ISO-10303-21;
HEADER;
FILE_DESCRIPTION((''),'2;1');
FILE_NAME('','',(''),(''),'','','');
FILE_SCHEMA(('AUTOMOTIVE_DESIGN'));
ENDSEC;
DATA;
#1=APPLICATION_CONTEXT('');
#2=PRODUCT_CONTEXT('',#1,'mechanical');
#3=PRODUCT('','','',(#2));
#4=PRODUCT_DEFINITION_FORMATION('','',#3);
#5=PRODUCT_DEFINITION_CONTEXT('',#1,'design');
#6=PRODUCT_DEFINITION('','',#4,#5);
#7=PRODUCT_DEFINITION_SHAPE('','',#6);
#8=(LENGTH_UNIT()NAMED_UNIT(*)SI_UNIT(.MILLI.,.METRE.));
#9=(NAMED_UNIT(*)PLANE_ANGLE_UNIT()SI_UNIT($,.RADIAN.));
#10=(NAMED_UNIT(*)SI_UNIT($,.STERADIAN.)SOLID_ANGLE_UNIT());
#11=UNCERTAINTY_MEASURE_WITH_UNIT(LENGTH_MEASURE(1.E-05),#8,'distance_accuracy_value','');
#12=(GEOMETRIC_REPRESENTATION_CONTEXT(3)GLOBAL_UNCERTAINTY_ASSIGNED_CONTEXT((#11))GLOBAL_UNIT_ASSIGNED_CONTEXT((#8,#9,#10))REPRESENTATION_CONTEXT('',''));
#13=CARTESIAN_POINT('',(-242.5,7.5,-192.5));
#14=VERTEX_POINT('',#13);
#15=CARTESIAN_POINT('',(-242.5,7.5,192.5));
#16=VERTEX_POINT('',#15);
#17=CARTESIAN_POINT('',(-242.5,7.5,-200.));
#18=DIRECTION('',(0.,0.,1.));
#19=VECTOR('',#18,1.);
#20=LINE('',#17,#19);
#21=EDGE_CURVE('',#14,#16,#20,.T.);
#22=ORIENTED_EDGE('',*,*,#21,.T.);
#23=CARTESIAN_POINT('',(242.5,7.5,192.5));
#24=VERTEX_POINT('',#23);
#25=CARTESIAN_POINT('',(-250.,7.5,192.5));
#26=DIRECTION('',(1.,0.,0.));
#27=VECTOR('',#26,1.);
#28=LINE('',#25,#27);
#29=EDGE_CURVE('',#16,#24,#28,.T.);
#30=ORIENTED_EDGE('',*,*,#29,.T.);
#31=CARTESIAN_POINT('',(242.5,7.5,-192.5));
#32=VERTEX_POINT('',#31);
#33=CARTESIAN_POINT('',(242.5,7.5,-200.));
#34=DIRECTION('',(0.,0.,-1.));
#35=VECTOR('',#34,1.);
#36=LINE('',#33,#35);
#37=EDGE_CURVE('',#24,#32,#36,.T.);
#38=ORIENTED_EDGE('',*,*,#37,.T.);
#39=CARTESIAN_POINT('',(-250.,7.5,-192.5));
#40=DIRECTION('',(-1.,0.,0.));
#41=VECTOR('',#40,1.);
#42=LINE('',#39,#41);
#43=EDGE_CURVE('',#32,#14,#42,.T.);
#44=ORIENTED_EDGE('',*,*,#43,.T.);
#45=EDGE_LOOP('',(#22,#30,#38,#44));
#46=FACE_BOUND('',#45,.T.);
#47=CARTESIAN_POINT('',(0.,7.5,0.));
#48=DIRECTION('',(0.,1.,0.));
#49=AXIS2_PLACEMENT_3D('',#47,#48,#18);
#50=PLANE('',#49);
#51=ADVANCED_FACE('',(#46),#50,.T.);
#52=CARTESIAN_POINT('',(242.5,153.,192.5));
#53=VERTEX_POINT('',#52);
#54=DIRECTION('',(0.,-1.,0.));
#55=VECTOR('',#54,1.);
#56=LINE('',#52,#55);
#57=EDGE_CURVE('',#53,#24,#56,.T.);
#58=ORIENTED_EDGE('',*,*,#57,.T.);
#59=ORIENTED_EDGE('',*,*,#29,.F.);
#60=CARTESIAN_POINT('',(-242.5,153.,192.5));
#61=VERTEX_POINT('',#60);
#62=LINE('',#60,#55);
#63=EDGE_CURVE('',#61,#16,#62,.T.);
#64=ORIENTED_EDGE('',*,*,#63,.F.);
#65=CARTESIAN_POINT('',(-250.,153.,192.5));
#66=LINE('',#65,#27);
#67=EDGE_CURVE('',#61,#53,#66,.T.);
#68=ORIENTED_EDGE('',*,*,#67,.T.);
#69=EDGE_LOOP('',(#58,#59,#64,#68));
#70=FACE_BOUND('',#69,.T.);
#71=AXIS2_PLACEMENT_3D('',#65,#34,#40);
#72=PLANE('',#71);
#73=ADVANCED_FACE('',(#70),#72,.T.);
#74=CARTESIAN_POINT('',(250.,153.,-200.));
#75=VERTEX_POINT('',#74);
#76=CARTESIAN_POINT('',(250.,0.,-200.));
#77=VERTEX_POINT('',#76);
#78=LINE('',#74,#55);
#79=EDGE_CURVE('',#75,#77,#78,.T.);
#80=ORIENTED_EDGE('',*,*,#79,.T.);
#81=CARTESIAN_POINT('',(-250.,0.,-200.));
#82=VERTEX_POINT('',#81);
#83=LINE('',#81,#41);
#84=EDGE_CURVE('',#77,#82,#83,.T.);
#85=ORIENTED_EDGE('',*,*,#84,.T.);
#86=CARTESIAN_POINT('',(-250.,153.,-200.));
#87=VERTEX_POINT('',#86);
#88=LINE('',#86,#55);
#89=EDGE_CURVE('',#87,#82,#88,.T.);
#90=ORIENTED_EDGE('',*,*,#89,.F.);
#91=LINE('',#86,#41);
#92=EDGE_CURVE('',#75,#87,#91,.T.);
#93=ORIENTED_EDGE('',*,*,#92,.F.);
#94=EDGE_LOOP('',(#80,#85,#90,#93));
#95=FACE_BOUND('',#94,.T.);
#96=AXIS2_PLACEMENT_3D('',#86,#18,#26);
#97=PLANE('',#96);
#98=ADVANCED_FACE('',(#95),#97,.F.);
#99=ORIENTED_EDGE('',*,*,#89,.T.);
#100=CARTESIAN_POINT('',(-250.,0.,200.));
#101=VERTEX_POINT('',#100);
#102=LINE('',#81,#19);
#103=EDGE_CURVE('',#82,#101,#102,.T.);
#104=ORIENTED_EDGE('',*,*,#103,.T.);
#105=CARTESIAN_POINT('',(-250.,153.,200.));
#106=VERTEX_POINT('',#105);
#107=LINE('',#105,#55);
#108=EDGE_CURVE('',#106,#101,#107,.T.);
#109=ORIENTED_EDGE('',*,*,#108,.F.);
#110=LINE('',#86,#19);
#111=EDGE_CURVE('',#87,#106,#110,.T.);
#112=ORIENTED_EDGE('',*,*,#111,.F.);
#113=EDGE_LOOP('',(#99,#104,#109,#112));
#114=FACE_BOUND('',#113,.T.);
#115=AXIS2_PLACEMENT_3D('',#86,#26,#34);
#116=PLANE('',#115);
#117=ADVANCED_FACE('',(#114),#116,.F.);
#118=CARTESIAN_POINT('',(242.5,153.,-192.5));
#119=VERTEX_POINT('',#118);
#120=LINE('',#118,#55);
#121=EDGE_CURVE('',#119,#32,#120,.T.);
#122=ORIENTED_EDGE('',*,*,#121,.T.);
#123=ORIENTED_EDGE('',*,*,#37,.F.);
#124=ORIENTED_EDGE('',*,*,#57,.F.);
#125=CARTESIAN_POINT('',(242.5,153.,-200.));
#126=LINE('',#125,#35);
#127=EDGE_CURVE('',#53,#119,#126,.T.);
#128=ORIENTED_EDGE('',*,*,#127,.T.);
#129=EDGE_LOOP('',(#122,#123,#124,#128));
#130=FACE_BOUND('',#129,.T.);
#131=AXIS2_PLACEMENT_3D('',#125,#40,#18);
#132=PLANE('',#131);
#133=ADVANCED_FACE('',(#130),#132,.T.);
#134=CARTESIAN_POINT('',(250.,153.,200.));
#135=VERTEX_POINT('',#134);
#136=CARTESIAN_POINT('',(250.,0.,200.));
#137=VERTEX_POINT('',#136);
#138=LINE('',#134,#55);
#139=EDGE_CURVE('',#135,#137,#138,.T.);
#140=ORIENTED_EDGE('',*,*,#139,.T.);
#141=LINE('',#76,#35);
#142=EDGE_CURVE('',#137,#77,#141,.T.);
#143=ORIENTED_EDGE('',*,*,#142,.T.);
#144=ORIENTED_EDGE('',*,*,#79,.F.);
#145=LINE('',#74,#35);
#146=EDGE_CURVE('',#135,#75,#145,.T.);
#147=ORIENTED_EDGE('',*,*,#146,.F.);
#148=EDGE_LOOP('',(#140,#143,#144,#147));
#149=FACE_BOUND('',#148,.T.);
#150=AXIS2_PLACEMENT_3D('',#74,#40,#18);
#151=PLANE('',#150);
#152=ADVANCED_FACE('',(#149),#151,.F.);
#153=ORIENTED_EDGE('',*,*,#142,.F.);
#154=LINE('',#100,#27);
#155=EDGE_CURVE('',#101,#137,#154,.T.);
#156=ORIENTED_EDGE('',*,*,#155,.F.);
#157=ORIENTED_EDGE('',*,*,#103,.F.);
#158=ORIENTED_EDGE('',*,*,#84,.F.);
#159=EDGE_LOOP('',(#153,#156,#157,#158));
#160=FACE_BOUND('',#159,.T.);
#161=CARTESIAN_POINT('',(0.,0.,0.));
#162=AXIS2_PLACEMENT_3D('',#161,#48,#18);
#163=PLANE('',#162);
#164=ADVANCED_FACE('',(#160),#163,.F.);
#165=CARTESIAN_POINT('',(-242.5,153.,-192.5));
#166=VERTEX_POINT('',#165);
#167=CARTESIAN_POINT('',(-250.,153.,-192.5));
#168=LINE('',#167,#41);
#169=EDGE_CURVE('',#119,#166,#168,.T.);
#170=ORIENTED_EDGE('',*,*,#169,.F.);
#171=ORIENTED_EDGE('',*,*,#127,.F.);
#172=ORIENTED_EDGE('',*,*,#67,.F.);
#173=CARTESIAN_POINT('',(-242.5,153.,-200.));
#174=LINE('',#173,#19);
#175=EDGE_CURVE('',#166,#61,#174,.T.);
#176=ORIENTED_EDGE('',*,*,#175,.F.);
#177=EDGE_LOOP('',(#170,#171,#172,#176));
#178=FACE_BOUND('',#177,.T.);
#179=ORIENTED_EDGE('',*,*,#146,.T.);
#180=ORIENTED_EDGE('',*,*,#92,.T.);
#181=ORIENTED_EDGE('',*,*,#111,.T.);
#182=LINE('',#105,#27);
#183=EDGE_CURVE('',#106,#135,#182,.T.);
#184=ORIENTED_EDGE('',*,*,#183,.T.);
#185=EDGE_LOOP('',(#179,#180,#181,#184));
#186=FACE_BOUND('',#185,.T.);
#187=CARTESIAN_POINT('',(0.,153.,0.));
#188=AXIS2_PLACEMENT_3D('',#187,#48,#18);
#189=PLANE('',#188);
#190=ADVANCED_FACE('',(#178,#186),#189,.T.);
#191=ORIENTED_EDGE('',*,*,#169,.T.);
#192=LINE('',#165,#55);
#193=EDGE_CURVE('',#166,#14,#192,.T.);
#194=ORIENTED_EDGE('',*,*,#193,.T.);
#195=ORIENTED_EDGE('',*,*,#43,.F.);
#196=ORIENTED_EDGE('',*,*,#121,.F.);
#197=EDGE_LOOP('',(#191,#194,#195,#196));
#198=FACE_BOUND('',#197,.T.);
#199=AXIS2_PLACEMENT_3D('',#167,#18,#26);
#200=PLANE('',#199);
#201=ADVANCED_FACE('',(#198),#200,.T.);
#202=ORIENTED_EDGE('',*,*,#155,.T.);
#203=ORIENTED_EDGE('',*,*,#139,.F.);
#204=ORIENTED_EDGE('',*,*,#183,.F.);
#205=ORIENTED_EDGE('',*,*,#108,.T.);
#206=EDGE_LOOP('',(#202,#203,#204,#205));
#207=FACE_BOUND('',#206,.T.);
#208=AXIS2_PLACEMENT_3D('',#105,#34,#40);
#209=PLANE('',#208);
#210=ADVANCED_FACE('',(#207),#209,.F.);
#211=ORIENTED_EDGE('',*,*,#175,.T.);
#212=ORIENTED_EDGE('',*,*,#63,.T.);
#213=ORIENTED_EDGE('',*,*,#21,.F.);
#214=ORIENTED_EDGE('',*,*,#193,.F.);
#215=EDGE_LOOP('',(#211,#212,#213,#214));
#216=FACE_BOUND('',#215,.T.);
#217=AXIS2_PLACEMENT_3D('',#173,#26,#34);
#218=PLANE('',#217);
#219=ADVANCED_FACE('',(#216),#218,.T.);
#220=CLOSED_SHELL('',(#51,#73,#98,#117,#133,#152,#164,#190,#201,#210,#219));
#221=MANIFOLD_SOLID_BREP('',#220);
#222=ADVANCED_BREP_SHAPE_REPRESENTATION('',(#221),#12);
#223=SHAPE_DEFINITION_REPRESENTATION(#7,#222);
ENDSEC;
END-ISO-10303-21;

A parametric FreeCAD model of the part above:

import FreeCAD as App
import Part
import Sketcher
Q = App.Units.Quantity


def faces_at(feature, points):
    """Names of the faces that lie closest to the given points."""
    faces = feature.Shape.Faces
    near = lambda p: min(range(len(faces)), key=lambda i: faces[i].distToShape(Part.Vertex(*p))[0])
    return sorted({f"Face{near(p) + 1}" for p in points})


def add_polygon(sketch, points):
    """Adds a closed chain of lines whose ends are joined by coincident constraints."""
    first, n = sketch.GeometryCount, len(points)
    for a, b in zip(points, points[1:] + points[:1]):
        sketch.addGeometry(Part.LineSegment(App.Vector(*a, 0), App.Vector(*b, 0)), False)
    for i in range(n):
        sketch.addConstraint(Sketcher.Constraint("Coincident", first + i, 2, first + (i + 1) % n, 1))

doc = App.newDocument("Part")
params = doc.addObject("Spreadsheet::Sheet", "Params")
for row, (alias, value) in enumerate([
    ("sketch1_width", "500 mm"),
    ("sketch1_height", "400 mm"),
    ("pad1_length", "153 mm"),
    ("thickness_wall", "7.5 mm"),
], start=1):
    params.set(f"A{row}", alias)
    params.set(f"B{row}", "=" + value)
    params.setAlias(f"B{row}", alias)

body = doc.addObject("PartDesign::Body", "Body")

# Sketch on XZ plane
sketch1 = body.newObject("Sketcher::SketchObject", "Sketch")
sketch1.AttachmentSupport = (doc.getObject("XZ_Plane"), [""])
sketch1.MapMode = "FlatFace"
add_polygon(sketch1, [(-250, -200), (-250, 200), (250, 200), (250, -200)])  # lines 0-3
sketch1.addConstraint(Sketcher.Constraint("Vertical", 0))
sketch1.addConstraint(Sketcher.Constraint("Horizontal", 1))
sketch1.addConstraint(Sketcher.Constraint("Vertical", 2))
sketch1.addConstraint(Sketcher.Constraint("Horizontal", 3))
sketch1.addConstraint(Sketcher.Constraint("Symmetric", 0, 2, 2, 2, -1, 1))
sketch1.addConstraint(Sketcher.Constraint("DistanceX", 1, 1, 1, 2, Q("500 mm")))
sketch1.addConstraint(Sketcher.Constraint("DistanceY", 0, 1, 0, 2, Q("400 mm")))
sketch1.setExpression("Constraints[9]", "Params.sketch1_width")
sketch1.setExpression("Constraints[10]", "Params.sketch1_height")
pad1 = body.newObject("PartDesign::Pad", "Pad")
pad1.Profile = sketch1
pad1.setExpression("Length", "Params.pad1_length")
pad1.Reversed = True
doc.recompute()

thickness = body.newObject("PartDesign::Thickness", "Thickness")
thickness.Base = (pad1, faces_at(pad1, [(0, 153, 0)]))
thickness.setExpression("Value", "Params.thickness_wall")
thickness.Reversed = True
thickness.Join = "Intersection"

doc.recompute()
